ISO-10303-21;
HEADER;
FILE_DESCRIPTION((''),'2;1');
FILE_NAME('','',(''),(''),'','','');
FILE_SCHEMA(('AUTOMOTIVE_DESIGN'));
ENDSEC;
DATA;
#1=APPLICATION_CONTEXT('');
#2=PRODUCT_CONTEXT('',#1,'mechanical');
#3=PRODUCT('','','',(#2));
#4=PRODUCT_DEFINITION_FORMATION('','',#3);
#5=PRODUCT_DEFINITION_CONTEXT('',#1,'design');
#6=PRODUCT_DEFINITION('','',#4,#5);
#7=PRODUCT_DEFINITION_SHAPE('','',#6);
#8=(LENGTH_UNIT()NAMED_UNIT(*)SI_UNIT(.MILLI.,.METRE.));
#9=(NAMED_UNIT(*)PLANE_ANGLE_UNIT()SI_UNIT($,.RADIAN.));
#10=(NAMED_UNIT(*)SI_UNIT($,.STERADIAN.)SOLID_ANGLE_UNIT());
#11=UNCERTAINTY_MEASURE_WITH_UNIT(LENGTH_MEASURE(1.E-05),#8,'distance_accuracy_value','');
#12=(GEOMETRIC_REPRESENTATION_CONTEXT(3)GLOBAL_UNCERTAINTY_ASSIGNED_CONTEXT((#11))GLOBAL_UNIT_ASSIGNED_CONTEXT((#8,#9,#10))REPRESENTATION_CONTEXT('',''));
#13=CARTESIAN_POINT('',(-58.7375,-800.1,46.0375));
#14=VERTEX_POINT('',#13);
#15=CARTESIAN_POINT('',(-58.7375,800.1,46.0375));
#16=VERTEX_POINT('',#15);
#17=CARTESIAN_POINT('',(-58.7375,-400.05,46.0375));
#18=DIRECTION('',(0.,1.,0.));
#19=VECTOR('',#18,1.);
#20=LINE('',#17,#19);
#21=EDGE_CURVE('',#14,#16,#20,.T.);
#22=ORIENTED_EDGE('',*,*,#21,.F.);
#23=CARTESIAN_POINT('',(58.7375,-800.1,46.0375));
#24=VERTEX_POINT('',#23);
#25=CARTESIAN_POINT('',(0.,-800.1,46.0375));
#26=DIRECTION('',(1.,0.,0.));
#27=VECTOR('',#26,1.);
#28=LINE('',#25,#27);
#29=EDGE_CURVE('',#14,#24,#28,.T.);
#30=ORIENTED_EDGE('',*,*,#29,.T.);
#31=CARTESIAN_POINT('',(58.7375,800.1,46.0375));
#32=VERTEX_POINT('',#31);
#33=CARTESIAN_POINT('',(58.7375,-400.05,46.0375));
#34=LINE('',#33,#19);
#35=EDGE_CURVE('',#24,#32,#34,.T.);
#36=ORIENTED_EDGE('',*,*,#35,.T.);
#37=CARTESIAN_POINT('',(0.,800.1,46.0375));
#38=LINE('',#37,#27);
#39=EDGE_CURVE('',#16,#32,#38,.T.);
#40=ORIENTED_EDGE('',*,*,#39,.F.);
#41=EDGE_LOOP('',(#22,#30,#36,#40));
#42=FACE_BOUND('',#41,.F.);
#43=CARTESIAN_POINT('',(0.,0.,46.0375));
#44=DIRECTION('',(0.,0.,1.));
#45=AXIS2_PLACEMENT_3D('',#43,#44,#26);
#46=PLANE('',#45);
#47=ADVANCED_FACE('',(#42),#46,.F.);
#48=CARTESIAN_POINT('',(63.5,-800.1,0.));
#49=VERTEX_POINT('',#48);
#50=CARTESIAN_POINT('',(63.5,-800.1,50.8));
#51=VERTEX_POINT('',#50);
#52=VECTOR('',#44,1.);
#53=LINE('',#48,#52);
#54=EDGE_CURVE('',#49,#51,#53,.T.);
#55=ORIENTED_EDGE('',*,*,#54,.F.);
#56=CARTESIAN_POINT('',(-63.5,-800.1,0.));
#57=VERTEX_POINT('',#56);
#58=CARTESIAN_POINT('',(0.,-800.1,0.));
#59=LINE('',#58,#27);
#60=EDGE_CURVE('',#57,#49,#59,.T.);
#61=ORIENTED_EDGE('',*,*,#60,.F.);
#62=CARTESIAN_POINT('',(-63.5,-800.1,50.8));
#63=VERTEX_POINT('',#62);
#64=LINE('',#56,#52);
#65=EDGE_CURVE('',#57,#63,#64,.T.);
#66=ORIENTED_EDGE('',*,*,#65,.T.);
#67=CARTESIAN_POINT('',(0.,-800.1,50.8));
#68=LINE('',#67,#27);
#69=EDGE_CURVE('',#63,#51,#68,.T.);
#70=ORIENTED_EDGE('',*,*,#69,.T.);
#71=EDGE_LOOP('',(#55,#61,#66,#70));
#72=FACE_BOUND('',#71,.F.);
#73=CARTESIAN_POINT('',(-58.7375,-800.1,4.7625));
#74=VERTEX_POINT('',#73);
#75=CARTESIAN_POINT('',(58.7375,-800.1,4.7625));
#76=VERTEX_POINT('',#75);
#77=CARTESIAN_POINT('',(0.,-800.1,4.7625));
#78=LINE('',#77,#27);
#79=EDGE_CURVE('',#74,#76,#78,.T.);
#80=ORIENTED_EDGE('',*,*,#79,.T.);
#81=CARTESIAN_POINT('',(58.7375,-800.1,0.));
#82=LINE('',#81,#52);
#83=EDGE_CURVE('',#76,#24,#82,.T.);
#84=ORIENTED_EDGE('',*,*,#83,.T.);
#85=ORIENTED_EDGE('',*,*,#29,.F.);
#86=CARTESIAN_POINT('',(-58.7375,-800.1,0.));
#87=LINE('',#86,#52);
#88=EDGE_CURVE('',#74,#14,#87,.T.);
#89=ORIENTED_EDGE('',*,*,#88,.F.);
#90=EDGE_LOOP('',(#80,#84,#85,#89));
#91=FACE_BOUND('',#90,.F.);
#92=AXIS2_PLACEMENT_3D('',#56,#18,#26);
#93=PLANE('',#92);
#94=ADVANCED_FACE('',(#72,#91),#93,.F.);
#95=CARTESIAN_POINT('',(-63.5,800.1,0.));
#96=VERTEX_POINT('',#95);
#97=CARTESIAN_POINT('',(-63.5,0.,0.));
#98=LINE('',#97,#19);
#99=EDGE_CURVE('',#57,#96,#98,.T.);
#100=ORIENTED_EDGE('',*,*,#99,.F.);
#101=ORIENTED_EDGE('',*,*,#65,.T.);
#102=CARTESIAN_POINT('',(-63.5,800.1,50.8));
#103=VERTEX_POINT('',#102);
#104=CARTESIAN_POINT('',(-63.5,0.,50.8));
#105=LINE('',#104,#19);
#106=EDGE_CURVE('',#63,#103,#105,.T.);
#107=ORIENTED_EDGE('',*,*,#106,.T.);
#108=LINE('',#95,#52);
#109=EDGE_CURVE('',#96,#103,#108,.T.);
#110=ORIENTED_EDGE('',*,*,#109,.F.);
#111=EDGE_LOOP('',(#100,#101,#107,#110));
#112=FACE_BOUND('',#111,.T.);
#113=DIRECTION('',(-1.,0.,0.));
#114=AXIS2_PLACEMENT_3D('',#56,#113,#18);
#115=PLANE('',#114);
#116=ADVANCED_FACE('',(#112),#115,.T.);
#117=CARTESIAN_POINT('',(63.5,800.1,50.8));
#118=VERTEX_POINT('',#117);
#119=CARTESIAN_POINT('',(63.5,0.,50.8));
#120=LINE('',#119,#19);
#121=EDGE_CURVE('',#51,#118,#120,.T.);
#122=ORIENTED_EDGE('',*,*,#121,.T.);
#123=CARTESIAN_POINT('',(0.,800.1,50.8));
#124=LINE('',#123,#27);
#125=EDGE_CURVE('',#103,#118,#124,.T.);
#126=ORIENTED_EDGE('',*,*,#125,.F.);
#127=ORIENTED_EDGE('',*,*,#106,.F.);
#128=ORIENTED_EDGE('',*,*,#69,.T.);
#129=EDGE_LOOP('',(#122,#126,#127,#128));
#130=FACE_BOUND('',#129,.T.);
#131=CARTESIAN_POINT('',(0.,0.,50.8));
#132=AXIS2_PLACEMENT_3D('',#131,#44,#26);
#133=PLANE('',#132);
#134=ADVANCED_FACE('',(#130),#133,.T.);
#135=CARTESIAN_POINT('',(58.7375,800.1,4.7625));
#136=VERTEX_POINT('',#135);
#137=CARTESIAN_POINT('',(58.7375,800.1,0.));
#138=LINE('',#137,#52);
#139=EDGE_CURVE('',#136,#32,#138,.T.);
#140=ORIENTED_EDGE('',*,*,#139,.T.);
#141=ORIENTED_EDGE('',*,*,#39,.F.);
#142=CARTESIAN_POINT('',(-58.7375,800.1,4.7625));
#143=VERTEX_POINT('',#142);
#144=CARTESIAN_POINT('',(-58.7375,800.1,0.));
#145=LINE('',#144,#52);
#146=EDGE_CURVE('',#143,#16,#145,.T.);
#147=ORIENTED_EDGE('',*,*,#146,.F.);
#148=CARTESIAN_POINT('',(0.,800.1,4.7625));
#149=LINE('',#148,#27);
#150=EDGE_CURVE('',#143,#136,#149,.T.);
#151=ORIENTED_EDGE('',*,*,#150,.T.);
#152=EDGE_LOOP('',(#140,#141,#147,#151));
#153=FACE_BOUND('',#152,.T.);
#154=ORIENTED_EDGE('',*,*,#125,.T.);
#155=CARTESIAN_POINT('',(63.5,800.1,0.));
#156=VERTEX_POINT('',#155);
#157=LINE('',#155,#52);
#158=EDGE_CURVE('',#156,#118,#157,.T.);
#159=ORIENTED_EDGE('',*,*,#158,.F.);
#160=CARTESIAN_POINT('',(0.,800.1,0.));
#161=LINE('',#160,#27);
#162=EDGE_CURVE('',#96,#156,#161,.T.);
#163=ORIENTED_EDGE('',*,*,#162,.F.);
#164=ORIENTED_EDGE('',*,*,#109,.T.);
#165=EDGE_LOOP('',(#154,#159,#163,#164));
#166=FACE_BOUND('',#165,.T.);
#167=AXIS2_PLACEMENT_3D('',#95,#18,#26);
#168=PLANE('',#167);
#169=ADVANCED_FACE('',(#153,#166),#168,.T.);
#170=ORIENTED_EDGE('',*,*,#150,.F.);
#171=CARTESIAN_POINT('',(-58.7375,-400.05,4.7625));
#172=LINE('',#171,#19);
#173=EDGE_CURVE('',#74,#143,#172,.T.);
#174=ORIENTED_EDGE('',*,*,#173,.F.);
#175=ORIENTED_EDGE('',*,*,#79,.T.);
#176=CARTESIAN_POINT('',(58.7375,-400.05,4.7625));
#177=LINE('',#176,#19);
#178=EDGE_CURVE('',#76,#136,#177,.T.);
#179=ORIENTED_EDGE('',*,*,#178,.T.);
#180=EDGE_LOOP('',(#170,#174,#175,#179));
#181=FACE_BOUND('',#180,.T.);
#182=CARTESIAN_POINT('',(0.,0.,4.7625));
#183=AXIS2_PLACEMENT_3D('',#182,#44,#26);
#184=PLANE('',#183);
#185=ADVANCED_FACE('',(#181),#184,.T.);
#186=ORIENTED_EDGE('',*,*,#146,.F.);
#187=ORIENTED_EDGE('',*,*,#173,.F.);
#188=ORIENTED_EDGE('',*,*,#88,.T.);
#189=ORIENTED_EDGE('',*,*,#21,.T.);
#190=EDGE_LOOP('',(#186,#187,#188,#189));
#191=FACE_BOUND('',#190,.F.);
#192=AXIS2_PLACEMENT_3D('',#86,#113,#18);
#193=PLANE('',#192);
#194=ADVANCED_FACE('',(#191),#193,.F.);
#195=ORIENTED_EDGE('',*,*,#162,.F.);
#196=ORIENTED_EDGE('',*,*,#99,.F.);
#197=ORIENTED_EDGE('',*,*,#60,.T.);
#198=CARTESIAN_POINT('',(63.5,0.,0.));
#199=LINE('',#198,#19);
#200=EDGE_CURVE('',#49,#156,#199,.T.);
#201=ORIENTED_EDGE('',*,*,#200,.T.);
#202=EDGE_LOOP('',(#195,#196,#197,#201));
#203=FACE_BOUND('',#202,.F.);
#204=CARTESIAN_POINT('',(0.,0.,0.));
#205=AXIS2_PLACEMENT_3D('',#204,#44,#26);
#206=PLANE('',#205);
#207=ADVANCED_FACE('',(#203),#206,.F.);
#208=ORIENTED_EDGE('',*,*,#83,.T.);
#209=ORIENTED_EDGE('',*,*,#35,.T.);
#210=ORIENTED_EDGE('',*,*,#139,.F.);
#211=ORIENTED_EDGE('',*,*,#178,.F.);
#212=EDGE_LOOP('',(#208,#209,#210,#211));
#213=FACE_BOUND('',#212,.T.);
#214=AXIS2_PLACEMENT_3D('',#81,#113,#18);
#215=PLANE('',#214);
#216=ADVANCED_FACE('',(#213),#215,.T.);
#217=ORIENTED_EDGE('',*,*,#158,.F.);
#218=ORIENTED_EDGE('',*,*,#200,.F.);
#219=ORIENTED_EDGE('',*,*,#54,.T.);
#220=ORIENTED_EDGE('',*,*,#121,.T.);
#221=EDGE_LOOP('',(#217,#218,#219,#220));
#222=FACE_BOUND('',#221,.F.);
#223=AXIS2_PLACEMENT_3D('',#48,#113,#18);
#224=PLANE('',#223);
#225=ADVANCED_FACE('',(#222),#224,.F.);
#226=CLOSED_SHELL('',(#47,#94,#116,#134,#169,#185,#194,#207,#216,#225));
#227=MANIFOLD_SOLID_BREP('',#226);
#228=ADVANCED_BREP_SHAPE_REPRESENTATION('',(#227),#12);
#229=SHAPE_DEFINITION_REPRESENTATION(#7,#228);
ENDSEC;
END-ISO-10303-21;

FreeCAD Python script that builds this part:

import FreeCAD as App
import Part
import Sketcher
Q = App.Units.Quantity


def faces_at(feature, points):
    """Names of the faces that lie closest to the given points."""
    faces = feature.Shape.Faces
    near = lambda p: min(range(len(faces)), key=lambda i: faces[i].distToShape(Part.Vertex(*p))[0])
    return sorted({f"Face{near(p) + 1}" for p in points})


def add_polygon(sketch, points):
    """Adds a closed chain of lines whose ends are joined by coincident constraints."""
    first, n = sketch.GeometryCount, len(points)
    for a, b in zip(points, points[1:] + points[:1]):
        sketch.addGeometry(Part.LineSegment(App.Vector(*a, 0), App.Vector(*b, 0)), False)
    for i in range(n):
        sketch.addConstraint(Sketcher.Constraint("Coincident", first + i, 2, first + (i + 1) % n, 1))

doc = App.newDocument("Part")
body = doc.addObject("PartDesign::Body", "Body")

sketch1 = doc.addObject("Sketcher::SketchObject", "Sketch")
body.addObject(sketch1)
sketch1.AttachmentSupport = (doc.XY_Plane, [""])
sketch1.MapMode = "FlatFace"
add_polygon(sketch1, [(-64, 800), (-64, -800), (64, -800), (64, 800)])
sketch1.addConstraint([
    Sketcher.Constraint("Vertical", 0),
    Sketcher.Constraint("Horizontal", 1),
    Sketcher.Constraint("Vertical", 2),
    Sketcher.Constraint("Horizontal", 3),
    Sketcher.Constraint("Symmetric", 0, 2, 2, 2, -1, 1),
    Sketcher.Constraint("DistanceX", 1, 1, 1, 2, Q("5 in")),
    Sketcher.Constraint("DistanceY", 0, 2, 0, 1, Q("63 in")),
])
pad1 = doc.addObject("PartDesign::Pad", "Pad")
body.addObject(pad1)
pad1.Profile = sketch1
pad1.Length = Q("2 in")
doc.recompute()

thickness = doc.addObject("PartDesign::Thickness", "Thickness")
body.addObject(thickness)
thickness.Base = (pad1, faces_at(pad1, [(0, -800.1, 25.4), (0, 800.1, 25.4)]))
thickness.Value = Q("0.1875 in")
thickness.Reversed = True
thickness.Join = "Arc"

doc.recompute()
